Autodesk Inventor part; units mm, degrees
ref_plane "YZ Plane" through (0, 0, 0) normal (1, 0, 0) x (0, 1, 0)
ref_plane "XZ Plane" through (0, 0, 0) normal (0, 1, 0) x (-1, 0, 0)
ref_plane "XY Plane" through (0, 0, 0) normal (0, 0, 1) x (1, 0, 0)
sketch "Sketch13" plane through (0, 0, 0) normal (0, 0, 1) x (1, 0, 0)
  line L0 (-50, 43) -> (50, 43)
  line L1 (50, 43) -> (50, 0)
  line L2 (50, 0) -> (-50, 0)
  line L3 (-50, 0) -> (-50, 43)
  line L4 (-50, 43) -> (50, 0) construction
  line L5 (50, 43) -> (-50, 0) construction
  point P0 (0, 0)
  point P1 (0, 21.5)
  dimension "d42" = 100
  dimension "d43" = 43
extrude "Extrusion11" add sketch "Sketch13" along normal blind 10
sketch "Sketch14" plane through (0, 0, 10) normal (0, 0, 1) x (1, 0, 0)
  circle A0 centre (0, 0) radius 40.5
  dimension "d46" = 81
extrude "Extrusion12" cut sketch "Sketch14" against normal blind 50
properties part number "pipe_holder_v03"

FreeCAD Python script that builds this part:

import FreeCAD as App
import Part
import Sketcher

V = App.Vector
Q = App.Units.Quantity

doc = App.newDocument("Part")
body = doc.addObject("PartDesign::Body", "Body")

# Sketch on XY plane
sketch1 = body.newObject("Sketcher::SketchObject", "Sketch")
sketch1.AttachmentSupport = (doc.getObject("XY_Plane"), [""])
sketch1.MapMode = "FlatFace"
sketch1.addGeometry([
    Part.LineSegment(V(50, 43, 0), V(-50, 43, 0)),
    Part.LineSegment(V(-50, 43, 0), V(-50, 0, 0)),
    Part.LineSegment(V(-50, 0, 0), V(50, 0, 0)),
    Part.LineSegment(V(50, 0, 0), V(50, 43, 0)),
], False)
sketch1.addConstraint([
    Sketcher.Constraint("Coincident", 0, 2, 1, 1),
    Sketcher.Constraint("Coincident", 1, 2, 2, 1),
    Sketcher.Constraint("Coincident", 2, 2, 3, 1),
    Sketcher.Constraint("Coincident", 3, 2, 0, 1),
    Sketcher.Constraint("Horizontal", 0),
    Sketcher.Constraint("Vertical", 1),
    Sketcher.Constraint("Horizontal", 2),
    Sketcher.Constraint("Vertical", 3),
    Sketcher.Constraint("Symmetric", 1, 2, 2, 2, -1, 1),
    Sketcher.Constraint("DistanceX", 0, 2, 0, 1, Q("100 mm")),
    Sketcher.Constraint("DistanceY", 1, 2, 1, 1, Q("43 mm")),
])
pad1 = body.newObject("PartDesign::Pad", "Pad")
pad1.Profile = sketch1
pad1.Length = 10

# Sketch on XY plane
sketch2 = body.newObject("Sketcher::SketchObject", "Sketch001")
sketch2.AttachmentSupport = (doc.getObject("XY_Plane"), [""])
sketch2.MapMode = "FlatFace"
sketch2.AttachmentOffset = App.Placement(V(0, 0, 10), App.Rotation())
sketch2.addGeometry(Part.Circle(V(0, 0, 0), V(0, 0, 1), 40), False)
sketch2.addConstraint([
    Sketcher.Constraint("Coincident", 0, 3, -1, 1),
    Sketcher.Constraint("Diameter", 0, Q("81 mm")),
])
pocket1 = body.newObject("PartDesign::Pocket", "Pocket")
pocket1.Profile = sketch2
pocket1.Length = 50

doc.recompute()
